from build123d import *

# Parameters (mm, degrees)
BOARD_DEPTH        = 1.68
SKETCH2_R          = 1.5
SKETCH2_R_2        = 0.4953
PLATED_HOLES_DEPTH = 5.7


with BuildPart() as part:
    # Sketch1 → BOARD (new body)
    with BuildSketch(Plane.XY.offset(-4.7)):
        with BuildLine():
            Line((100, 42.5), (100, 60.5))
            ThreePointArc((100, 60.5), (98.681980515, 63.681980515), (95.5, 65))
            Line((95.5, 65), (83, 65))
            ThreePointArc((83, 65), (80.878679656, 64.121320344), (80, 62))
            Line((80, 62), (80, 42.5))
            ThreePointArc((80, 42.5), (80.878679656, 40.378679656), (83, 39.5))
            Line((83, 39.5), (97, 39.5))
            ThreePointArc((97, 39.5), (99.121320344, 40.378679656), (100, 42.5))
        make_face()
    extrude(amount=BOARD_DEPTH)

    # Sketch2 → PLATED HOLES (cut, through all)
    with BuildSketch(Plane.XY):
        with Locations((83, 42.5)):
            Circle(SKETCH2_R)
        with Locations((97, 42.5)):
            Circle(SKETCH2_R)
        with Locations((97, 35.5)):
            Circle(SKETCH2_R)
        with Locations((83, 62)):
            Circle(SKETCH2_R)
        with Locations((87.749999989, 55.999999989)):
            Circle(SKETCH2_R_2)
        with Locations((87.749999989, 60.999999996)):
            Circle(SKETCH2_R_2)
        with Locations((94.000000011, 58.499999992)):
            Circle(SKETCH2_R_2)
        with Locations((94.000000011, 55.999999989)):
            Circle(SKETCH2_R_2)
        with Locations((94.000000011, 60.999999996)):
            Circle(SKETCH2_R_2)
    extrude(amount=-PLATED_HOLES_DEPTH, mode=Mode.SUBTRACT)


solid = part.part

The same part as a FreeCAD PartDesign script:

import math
import FreeCAD as App
import Part
import Sketcher
from FreeCAD import Vector
Q = App.Units.Quantity

doc = App.newDocument("Part")
body = doc.addObject("PartDesign::Body", "Body")

# Sketch on XY plane
sketch1 = doc.addObject("Sketcher::SketchObject", "Sketch")
body.addObject(sketch1)
sketch1.AttachmentSupport = (doc.XY_Plane, [""])
sketch1.MapMode = "FlatFace"
sketch1.AttachmentOffset = App.Placement(Vector(0, 0, -4.7), App.Rotation())
sketch1.addGeometry(Part.LineSegment(Vector(100, 42.5, 0), Vector(100, 60.5, 0)), False)
sketch1.addGeometry(Part.ArcOfCircle(Part.Circle(Vector(95.5, 60.5, 0), Vector(0, 0, 1), 4.5), math.radians(0), math.radians(90)), False)
sketch1.addGeometry(Part.LineSegment(Vector(95.5, 65, 0), Vector(83, 65, 0)), False)
sketch1.addGeometry(Part.ArcOfCircle(Part.Circle(Vector(83, 62, 0), Vector(0, 0, 1), 3), math.radians(90), math.radians(180)), False)
sketch1.addGeometry(Part.LineSegment(Vector(80, 62, 0), Vector(80, 42.5, 0)), False)
sketch1.addGeometry(Part.ArcOfCircle(Part.Circle(Vector(83, 42.5, 0), Vector(0, 0, 1), 3), math.radians(180), math.radians(270)), False)
sketch1.addGeometry(Part.LineSegment(Vector(83, 39.5, 0), Vector(97, 39.5, 0)), False)
sketch1.addGeometry(Part.ArcOfCircle(Part.Circle(Vector(97, 42.5, 0), Vector(0, 0, 1), 3), math.radians(-90), math.radians(0)), False)
sketch1.addConstraint(Sketcher.Constraint("Tangent", 0, 2, 1, 1))
sketch1.addConstraint(Sketcher.Constraint("Tangent", 1, 2, 2, 1))
sketch1.addConstraint(Sketcher.Constraint("Tangent", 2, 2, 3, 1))
sketch1.addConstraint(Sketcher.Constraint("Tangent", 3, 2, 4, 1))
sketch1.addConstraint(Sketcher.Constraint("Tangent", 4, 2, 5, 1))
sketch1.addConstraint(Sketcher.Constraint("Tangent", 5, 2, 6, 1))
sketch1.addConstraint(Sketcher.Constraint("Tangent", 6, 2, 7, 1))
sketch1.addConstraint(Sketcher.Constraint("Tangent", 7, 2, 0, 1))
sketch1.addConstraint(Sketcher.Constraint("Vertical", 0))
sketch1.addConstraint(Sketcher.Constraint("Horizontal", 2))
sketch1.addConstraint(Sketcher.Constraint("Vertical", 4))
sketch1.addConstraint(Sketcher.Constraint("Horizontal", 6))
sketch1.addConstraint(Sketcher.Constraint("Equal", 3, 5))
sketch1.addConstraint(Sketcher.Constraint("Equal", 5, 7))
sketch1.addConstraint(Sketcher.Constraint("Radius", 3, Q("3 mm")))
sketch1.addConstraint(Sketcher.Constraint("Radius", 1, Q("4.5 mm")))
sketch1.addConstraint(Sketcher.Constraint("DistanceX", 6, 1, 6, 2, Q("14 mm")))
sketch1.addConstraint(Sketcher.Constraint("DistanceY", 0, 1, 0, 2, Q("18 mm")))
sketch1.addConstraint(Sketcher.Constraint("DistanceX", -1, 1, 3, 3, Q("83 mm")))
sketch1.addConstraint(Sketcher.Constraint("DistanceY", -1, 1, 3, 3, Q("62 mm")))
pad1 = doc.addObject("PartDesign::Pad", "Pad")
body.addObject(pad1)
pad1.Profile = sketch1
pad1.Length = 1.68

# Sketch on XY plane
sketch2 = doc.addObject("Sketcher::SketchObject", "Sketch001")
body.addObject(sketch2)
sketch2.AttachmentSupport = (doc.XY_Plane, [""])
sketch2.MapMode = "FlatFace"
sketch2.addGeometry(Part.Circle(Vector(83, 42.5, 0), Vector(0, 0, 1), 1.5), False)
sketch2.addGeometry(Part.Circle(Vector(97, 42.5, 0), Vector(0, 0, 1), 1.5), False)
sketch2.addGeometry(Part.Circle(Vector(97, 35.5, 0), Vector(0, 0, 1), 1.5), False)
sketch2.addGeometry(Part.Circle(Vector(83, 62, 0), Vector(0, 0, 1), 1.5), False)
sketch2.addGeometry(Part.Circle(Vector(87.75, 56, 0), Vector(0, 0, 1), 0.4953), False)
sketch2.addGeometry(Part.Circle(Vector(87.75, 61, 0), Vector(0, 0, 1), 0.4953), False)
sketch2.addGeometry(Part.Circle(Vector(94, 58.5, 0), Vector(0, 0, 1), 0.4953), False)
sketch2.addGeometry(Part.Circle(Vector(94, 56, 0), Vector(0, 0, 1), 0.4953), False)
sketch2.addGeometry(Part.Circle(Vector(94, 61, 0), Vector(0, 0, 1), 0.4953), False)
sketch2.addConstraint(Sketcher.Constraint("Equal", 0, 1))
sketch2.addConstraint(Sketcher.Constraint("Equal", 1, 2))
sketch2.addConstraint(Sketcher.Constraint("Equal", 2, 3))
sketch2.addConstraint(Sketcher.Constraint("Equal", 4, 5))
sketch2.addConstraint(Sketcher.Constraint("Equal", 5, 6))
sketch2.addConstraint(Sketcher.Constraint("Equal", 6, 7))
sketch2.addConstraint(Sketcher.Constraint("Equal", 7, 8))
sketch2.addConstraint(Sketcher.Constraint("Horizontal", 0, 3, 1, 3))
sketch2.addConstraint(Sketcher.Constraint("Horizontal", 4, 3, 7, 3))
sketch2.addConstraint(Sketcher.Constraint("Horizontal", 5, 3, 8, 3))
sketch2.addConstraint(Sketcher.Constraint("Vertical", 1, 3, 2, 3))
sketch2.addConstraint(Sketcher.Constraint("Vertical", 0, 3, 3, 3))
sketch2.addConstraint(Sketcher.Constraint("Vertical", 4, 3, 5, 3))
sketch2.addConstraint(Sketcher.Constraint("Vertical", 6, 3, 7, 3))
sketch2.addConstraint(Sketcher.Constraint("Vertical", 7, 3, 8, 3))
sketch2.addConstraint(Sketcher.Constraint("Diameter", 0, Q("3 mm")))
sketch2.addConstraint(Sketcher.Constraint("DistanceX", -1, 1, 0, 3, Q("83 mm")))
sketch2.addConstraint(Sketcher.Constraint("DistanceX", -1, 1, 1, 3, Q("97 mm")))
sketch2.addConstraint(Sketcher.Constraint("DistanceY", -1, 1, 3, 3, Q("62 mm")))
sketch2.addConstraint(Sketcher.Constraint("DistanceY", -1, 1, 4, 3, Q("56 mm")))
sketch2.addConstraint(Sketcher.Constraint("DistanceY", -1, 1, 5, 3, Q("61 mm")))
sketch2.addConstraint(Sketcher.Constraint("DistanceX", -1, 1, 6, 3, Q("94 mm")))
sketch2.addConstraint(Sketcher.Constraint("DistanceY", 2, 3, 1, 3, Q("7 mm")))
sketch2.addConstraint(Sketcher.Constraint("DistanceY", 1, 3, 6, 3, Q("16 mm")))
sketch2.addConstraint(Sketcher.Constraint("Diameter", 4, Q("0.9906 mm")))
sketch2.addConstraint(Sketcher.Constraint("DistanceY", -1, 1, 0, 3, Q("42.5 mm")))
sketch2.addConstraint(Sketcher.Constraint("DistanceX", -1, 1, 4, 3, Q("87.75 mm")))
pocket1 = doc.addObject("PartDesign::Pocket", "Pocket")
body.addObject(pocket1)
pocket1.Profile = sketch2
pocket1.Type = "ThroughAll"

doc.recompute()
